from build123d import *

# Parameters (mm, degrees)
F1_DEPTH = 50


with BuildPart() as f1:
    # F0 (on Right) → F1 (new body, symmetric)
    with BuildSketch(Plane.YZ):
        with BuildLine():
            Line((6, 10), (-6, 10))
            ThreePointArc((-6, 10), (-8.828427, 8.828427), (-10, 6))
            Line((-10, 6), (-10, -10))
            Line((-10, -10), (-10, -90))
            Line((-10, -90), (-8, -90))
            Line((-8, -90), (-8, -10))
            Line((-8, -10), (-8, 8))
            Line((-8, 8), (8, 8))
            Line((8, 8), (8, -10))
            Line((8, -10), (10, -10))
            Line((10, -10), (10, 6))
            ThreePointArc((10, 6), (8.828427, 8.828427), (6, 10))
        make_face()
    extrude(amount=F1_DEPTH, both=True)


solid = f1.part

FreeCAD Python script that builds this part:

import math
import FreeCAD as App
import Part
import Sketcher
from FreeCAD import Vector
Q = App.Units.Quantity

doc = App.newDocument("Part")
params = doc.addObject("Spreadsheet::Sheet", "Params")
for row, (alias, value) in enumerate([
    ("sketch1_radius", "4 mm"),
    ("sketch1_width", "12 mm"),
    ("sketch1_width2", "2 mm"),
    ("sketch1_height", "96 mm"),
    ("sketch1_height2", "98 mm"),
    ("pad1_length", "100 mm"),
], start=1):
    params.set(f"A{row}", alias)
    params.set(f"B{row}", "=" + value)
    params.setAlias(f"B{row}", alias)

body = doc.addObject("PartDesign::Body", "Body")

sketch1 = body.newObject("Sketcher::SketchObject", "Sketch")
sketch1.AttachmentSupport = (doc.getObject("YZ_Plane"), [""])
sketch1.MapMode = "FlatFace"
sketch1.addGeometry(Part.LineSegment(Vector(6, 10, 0), Vector(-6, 10, 0)), False)
sketch1.addGeometry(Part.ArcOfCircle(Part.Circle(Vector(-6, 6, 0), Vector(0, 0, 1), 4), math.radians(90), math.radians(180)), False)
sketch1.addGeometry(Part.LineSegment(Vector(-10, 6, 0), Vector(-10, -90, 0)), False)
sketch1.addGeometry(Part.LineSegment(Vector(-10, -90, 0), Vector(-8, -90, 0)), False)
sketch1.addGeometry(Part.LineSegment(Vector(-8, -90, 0), Vector(-8, 8, 0)), False)
sketch1.addGeometry(Part.LineSegment(Vector(-8, 8, 0), Vector(8, 8, 0)), False)
sketch1.addGeometry(Part.LineSegment(Vector(8, 8, 0), Vector(8, -10, 0)), False)
sketch1.addGeometry(Part.LineSegment(Vector(8, -10, 0), Vector(10, -10, 0)), False)
sketch1.addGeometry(Part.LineSegment(Vector(10, -10, 0), Vector(10, 6, 0)), False)
sketch1.addGeometry(Part.ArcOfCircle(Part.Circle(Vector(6, 6, 0), Vector(0, 0, 1), 4), math.radians(0), math.radians(90)), False)
sketch1.addConstraint(Sketcher.Constraint("Tangent", 0, 2, 1, 1))
sketch1.addConstraint(Sketcher.Constraint("Tangent", 1, 2, 2, 1))
sketch1.addConstraint(Sketcher.Constraint("Coincident", 2, 2, 3, 1))
sketch1.addConstraint(Sketcher.Constraint("Coincident", 3, 2, 4, 1))
sketch1.addConstraint(Sketcher.Constraint("Coincident", 4, 2, 5, 1))
sketch1.addConstraint(Sketcher.Constraint("Coincident", 5, 2, 6, 1))
sketch1.addConstraint(Sketcher.Constraint("Coincident", 6, 2, 7, 1))
sketch1.addConstraint(Sketcher.Constraint("Coincident", 7, 2, 8, 1))
sketch1.addConstraint(Sketcher.Constraint("Tangent", 8, 2, 9, 1))
sketch1.addConstraint(Sketcher.Constraint("Tangent", 9, 2, 0, 1))
sketch1.addConstraint(Sketcher.Constraint("Horizontal", 0))
sketch1.addConstraint(Sketcher.Constraint("Vertical", 2))
sketch1.addConstraint(Sketcher.Constraint("Horizontal", 3))
sketch1.addConstraint(Sketcher.Constraint("Vertical", 4))
sketch1.addConstraint(Sketcher.Constraint("Horizontal", 5))
sketch1.addConstraint(Sketcher.Constraint("Vertical", 6))
sketch1.addConstraint(Sketcher.Constraint("Horizontal", 7))
sketch1.addConstraint(Sketcher.Constraint("Vertical", 8))
sketch1.addConstraint(Sketcher.Constraint("Equal", 1, 9))
sketch1.addConstraint(Sketcher.Constraint("Equal", 3, 7))
sketch1.addConstraint(Sketcher.Constraint("Equal", 5, 8))
sketch1.addConstraint(Sketcher.Constraint("Radius", 1, Q("4 mm")))
sketch1.addConstraint(Sketcher.Constraint("DistanceX", 0, 2, 0, 1, Q("12 mm")))
sketch1.addConstraint(Sketcher.Constraint("DistanceX", 3, 1, 3, 2, Q("2 mm")))
sketch1.addConstraint(Sketcher.Constraint("DistanceY", 2, 2, 2, 1, Q("96 mm")))
sketch1.addConstraint(Sketcher.Constraint("DistanceY", 4, 1, 4, 2, Q("98 mm")))
sketch1.addConstraint(Sketcher.Constraint("DistanceX", 1, 3, -1, 1, Q("6 mm")))
sketch1.addConstraint(Sketcher.Constraint("DistanceY", -1, 1, 1, 3, Q("6 mm")))
sketch1.setExpression("Constraints[21]", "Params.sketch1_radius")
sketch1.setExpression("Constraints[22]", "Params.sketch1_width")
sketch1.setExpression("Constraints[23]", "Params.sketch1_width2")
sketch1.setExpression("Constraints[24]", "Params.sketch1_height")
sketch1.setExpression("Constraints[25]", "Params.sketch1_height2")
pad1 = body.newObject("PartDesign::Pad", "Pad")
pad1.Profile = sketch1
pad1.setExpression("Length", "Params.pad1_length")
pad1.Midplane = True

doc.recompute()
